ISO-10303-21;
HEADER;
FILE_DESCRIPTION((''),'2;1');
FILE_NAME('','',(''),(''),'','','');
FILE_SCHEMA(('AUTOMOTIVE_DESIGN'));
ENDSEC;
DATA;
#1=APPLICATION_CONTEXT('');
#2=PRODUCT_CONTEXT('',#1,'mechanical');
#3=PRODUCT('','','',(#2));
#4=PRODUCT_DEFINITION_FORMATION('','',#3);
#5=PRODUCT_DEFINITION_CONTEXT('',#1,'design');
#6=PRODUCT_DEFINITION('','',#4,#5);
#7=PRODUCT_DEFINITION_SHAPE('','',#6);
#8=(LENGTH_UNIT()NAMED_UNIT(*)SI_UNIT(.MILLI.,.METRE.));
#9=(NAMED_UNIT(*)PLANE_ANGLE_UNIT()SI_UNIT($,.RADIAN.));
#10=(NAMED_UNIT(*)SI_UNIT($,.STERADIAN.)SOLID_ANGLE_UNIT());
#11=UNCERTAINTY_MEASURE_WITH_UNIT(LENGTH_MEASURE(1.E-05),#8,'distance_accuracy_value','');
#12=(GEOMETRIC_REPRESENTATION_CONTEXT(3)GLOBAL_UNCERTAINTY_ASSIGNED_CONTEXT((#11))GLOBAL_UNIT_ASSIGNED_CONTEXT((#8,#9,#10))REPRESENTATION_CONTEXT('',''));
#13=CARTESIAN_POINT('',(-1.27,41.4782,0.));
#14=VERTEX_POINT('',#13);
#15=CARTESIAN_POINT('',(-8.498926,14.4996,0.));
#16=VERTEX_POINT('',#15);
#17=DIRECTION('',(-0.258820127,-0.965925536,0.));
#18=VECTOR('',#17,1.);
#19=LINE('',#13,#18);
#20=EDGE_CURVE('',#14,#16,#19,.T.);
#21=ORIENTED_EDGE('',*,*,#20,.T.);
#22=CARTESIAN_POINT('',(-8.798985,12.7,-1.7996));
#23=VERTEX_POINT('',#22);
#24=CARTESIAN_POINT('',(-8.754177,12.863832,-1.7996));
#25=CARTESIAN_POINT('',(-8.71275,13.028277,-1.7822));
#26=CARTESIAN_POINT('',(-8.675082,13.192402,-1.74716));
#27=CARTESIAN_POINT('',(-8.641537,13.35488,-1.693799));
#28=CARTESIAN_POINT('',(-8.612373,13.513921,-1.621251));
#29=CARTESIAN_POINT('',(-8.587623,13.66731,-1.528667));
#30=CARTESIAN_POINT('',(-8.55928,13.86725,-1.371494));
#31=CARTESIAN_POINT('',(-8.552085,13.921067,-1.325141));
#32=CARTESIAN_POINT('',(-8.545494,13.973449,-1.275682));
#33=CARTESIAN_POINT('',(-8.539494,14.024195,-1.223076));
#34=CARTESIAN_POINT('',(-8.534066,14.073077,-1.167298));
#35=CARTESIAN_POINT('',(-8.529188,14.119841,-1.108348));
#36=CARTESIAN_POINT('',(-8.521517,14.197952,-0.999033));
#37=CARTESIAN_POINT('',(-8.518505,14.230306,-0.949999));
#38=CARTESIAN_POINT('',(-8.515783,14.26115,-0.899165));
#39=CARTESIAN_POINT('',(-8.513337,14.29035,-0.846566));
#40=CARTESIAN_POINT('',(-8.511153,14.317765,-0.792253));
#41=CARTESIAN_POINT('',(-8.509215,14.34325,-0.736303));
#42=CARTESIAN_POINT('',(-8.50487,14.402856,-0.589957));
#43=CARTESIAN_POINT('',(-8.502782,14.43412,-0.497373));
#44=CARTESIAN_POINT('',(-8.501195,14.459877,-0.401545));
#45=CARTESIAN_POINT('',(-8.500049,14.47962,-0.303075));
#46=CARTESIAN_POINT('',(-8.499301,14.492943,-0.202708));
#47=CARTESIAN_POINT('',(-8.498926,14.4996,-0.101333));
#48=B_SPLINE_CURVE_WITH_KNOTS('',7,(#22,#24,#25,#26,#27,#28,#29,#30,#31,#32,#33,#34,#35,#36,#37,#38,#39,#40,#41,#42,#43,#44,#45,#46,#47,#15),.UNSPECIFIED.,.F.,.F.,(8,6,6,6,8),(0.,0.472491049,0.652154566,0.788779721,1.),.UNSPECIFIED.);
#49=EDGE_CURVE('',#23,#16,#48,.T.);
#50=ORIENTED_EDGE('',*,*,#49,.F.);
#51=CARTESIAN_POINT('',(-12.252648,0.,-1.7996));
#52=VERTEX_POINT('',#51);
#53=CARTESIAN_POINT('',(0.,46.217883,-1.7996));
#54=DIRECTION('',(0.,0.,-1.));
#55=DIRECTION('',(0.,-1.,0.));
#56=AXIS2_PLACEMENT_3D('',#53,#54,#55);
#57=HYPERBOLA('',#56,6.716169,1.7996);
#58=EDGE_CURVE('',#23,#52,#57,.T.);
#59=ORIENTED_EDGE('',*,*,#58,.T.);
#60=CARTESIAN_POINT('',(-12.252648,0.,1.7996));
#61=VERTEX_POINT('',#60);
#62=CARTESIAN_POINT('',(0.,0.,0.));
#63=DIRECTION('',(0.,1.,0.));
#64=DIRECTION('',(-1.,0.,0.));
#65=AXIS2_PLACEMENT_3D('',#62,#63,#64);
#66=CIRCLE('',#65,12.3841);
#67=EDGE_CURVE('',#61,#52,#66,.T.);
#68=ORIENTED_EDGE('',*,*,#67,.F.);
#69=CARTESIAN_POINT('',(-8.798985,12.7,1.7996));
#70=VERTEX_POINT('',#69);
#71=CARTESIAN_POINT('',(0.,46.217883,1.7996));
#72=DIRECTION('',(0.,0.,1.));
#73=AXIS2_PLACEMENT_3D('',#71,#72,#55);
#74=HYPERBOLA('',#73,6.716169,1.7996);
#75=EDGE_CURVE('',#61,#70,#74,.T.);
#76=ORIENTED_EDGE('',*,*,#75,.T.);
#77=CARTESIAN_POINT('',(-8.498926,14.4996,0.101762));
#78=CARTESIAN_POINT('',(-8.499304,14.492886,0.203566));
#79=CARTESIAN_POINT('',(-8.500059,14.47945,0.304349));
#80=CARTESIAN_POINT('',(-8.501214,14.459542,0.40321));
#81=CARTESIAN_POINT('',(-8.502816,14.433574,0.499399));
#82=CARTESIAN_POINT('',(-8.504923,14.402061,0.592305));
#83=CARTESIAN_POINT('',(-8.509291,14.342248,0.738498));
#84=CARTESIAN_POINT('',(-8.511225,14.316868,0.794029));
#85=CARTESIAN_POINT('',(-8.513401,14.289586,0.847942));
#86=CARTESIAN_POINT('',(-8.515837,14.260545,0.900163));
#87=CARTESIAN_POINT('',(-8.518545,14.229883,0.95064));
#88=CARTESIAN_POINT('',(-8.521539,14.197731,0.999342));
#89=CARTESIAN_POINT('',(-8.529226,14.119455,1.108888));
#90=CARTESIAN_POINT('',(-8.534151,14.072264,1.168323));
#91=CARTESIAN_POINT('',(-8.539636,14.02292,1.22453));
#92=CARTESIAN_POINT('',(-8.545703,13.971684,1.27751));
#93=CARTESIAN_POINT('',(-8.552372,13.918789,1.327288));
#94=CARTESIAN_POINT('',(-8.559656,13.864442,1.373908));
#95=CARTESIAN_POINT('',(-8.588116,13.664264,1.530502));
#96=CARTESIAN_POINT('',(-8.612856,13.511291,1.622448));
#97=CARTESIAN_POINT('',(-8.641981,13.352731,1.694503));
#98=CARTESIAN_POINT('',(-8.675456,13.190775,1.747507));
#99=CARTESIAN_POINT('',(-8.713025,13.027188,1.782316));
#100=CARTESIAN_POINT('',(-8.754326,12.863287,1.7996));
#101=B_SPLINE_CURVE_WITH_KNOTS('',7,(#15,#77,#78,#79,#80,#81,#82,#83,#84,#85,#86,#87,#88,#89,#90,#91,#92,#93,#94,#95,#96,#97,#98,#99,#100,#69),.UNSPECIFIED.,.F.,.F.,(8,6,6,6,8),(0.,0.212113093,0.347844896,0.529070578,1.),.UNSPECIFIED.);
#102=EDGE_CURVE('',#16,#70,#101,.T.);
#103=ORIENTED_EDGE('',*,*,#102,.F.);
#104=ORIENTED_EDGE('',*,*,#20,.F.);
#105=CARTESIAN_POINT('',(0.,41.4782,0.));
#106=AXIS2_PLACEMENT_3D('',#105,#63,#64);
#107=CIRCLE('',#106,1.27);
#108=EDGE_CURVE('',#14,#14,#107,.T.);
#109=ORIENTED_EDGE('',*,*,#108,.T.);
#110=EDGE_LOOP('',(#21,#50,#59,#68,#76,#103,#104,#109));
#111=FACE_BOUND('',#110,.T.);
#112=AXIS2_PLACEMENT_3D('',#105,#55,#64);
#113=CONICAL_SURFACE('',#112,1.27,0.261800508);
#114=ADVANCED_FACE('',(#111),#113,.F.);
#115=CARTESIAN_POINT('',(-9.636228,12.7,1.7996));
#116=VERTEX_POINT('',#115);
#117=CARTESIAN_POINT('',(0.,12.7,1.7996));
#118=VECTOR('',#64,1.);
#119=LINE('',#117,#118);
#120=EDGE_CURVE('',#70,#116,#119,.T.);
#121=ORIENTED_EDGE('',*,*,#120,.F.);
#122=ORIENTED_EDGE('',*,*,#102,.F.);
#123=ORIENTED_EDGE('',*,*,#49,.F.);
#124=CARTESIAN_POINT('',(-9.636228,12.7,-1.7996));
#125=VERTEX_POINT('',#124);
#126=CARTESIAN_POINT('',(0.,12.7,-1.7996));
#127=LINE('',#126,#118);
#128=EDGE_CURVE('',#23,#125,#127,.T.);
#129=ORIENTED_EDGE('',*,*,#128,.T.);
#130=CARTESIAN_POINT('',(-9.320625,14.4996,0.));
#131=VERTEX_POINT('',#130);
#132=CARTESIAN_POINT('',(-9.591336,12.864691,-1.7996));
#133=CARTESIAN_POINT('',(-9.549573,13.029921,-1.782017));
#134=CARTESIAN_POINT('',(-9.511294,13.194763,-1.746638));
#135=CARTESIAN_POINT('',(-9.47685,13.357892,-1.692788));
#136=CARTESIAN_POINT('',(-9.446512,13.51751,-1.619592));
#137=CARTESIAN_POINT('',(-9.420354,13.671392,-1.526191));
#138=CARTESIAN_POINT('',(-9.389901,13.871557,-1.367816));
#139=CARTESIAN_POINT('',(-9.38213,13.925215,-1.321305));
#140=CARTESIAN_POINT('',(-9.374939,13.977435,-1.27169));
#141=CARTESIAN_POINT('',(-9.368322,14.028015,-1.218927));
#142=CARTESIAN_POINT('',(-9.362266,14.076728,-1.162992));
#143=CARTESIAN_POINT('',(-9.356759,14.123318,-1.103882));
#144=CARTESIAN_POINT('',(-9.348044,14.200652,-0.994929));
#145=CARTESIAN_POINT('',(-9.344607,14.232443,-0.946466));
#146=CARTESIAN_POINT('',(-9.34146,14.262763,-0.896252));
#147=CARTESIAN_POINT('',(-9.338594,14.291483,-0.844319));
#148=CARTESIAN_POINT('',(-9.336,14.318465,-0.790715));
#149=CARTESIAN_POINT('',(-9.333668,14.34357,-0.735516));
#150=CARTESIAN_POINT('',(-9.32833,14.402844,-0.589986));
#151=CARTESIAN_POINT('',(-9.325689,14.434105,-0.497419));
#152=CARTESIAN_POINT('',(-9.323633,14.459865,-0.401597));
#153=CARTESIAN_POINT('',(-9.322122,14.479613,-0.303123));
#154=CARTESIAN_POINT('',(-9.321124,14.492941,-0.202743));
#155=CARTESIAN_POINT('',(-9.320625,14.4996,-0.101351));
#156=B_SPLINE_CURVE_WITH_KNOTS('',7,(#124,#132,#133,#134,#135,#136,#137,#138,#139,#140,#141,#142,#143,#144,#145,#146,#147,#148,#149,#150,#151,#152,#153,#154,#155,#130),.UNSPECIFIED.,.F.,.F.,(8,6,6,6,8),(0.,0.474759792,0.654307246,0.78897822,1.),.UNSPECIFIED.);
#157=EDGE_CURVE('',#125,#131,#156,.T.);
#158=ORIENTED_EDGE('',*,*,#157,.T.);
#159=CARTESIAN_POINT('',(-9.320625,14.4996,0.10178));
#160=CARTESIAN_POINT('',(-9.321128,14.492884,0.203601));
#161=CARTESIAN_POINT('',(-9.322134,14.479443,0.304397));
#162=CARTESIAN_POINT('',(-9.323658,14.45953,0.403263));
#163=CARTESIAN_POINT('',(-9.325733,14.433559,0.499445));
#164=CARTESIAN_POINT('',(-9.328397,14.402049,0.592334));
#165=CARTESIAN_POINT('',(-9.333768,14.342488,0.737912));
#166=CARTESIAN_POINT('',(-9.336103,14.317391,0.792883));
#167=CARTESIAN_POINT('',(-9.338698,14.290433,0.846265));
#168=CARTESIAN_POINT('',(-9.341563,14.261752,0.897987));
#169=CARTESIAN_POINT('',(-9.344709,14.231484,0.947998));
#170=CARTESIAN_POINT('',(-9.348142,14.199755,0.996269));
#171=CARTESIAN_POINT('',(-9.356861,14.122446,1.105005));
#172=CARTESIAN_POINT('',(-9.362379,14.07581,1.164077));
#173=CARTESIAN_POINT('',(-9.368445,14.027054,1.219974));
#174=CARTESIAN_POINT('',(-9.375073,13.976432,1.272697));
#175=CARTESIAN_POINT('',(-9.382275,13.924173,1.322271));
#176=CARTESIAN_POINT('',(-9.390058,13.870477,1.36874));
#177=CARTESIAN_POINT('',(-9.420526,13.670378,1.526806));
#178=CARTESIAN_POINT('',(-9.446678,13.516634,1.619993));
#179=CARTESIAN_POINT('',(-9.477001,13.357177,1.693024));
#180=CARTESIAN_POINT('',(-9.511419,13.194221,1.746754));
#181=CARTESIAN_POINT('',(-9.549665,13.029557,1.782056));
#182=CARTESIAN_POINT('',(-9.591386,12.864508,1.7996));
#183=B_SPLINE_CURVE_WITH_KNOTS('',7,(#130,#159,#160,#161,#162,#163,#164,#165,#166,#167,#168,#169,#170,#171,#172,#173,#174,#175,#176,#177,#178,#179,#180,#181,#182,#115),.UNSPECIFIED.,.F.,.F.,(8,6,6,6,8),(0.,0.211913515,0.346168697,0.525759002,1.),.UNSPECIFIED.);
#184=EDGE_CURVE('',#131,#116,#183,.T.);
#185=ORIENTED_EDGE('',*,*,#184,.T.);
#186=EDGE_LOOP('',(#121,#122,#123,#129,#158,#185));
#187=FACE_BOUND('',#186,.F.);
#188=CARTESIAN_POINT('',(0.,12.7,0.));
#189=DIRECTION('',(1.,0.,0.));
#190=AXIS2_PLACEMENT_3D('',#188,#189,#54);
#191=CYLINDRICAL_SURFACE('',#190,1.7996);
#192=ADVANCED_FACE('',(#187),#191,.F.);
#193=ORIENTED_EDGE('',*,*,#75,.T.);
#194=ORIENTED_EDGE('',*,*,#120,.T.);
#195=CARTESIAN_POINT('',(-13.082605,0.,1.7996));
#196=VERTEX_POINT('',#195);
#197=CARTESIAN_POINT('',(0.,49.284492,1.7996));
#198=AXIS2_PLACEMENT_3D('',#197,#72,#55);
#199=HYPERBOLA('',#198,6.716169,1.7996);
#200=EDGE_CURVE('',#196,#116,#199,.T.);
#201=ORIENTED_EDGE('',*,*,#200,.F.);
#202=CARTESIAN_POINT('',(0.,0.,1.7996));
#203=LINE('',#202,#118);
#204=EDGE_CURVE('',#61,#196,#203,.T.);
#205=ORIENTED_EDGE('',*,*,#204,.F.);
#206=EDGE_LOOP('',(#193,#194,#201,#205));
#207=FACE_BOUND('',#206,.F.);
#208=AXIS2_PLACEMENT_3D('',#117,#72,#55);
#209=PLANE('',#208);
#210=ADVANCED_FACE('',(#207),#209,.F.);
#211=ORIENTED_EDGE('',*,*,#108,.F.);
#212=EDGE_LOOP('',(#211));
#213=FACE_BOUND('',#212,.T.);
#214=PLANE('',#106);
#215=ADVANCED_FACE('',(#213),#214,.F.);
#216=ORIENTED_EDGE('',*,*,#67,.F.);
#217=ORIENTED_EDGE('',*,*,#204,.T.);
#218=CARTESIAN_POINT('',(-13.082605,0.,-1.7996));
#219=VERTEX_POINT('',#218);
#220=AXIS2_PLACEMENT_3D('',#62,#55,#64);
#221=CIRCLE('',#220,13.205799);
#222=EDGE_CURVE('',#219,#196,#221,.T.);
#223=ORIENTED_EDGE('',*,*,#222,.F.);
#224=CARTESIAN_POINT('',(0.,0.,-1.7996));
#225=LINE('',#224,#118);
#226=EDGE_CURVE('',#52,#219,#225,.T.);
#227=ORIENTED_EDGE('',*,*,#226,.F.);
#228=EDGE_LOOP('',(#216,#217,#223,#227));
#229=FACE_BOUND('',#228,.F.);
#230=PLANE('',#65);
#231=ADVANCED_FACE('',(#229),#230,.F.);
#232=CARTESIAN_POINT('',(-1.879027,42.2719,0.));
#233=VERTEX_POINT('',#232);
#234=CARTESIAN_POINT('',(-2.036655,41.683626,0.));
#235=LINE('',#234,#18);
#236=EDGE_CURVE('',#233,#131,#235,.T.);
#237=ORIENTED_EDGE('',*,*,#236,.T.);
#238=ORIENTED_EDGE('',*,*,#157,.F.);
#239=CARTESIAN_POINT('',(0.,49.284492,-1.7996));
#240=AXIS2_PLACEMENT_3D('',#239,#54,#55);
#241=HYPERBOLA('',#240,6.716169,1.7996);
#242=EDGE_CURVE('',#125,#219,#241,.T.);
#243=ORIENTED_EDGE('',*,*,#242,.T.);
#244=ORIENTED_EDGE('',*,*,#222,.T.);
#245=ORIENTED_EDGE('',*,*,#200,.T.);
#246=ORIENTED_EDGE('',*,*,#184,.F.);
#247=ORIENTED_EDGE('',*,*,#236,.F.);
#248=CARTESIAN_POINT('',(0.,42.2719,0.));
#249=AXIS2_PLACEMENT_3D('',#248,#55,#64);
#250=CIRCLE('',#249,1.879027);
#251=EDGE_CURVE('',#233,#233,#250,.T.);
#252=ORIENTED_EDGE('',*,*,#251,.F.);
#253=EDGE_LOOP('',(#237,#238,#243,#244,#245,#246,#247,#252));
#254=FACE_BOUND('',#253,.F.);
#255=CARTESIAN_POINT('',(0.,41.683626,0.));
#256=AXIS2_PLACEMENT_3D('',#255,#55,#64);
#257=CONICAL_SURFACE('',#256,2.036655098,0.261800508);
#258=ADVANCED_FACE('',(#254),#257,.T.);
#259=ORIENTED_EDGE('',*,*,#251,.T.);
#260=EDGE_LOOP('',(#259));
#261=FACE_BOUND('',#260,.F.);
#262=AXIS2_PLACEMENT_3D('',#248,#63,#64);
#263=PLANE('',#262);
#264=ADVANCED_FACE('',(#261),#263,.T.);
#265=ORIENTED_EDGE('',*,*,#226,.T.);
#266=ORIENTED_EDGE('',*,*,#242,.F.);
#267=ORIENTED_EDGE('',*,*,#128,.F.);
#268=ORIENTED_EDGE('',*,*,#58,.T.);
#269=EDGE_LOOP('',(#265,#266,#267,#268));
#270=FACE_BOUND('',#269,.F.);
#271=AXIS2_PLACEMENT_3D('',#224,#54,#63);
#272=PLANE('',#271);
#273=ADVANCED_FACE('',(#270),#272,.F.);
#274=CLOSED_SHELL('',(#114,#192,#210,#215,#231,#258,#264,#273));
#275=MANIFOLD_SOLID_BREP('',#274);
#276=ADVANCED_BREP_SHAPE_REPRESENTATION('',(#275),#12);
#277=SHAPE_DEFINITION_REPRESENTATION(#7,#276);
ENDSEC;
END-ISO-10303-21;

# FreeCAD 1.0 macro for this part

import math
import FreeCAD as App
import Part
import Sketcher

V = App.Vector
Q = App.Units.Quantity


def faces_at(feature, points):
    """Names of the faces that lie closest to the given points."""
    faces = feature.Shape.Faces
    near = lambda p: min(range(len(faces)), key=lambda i: faces[i].distToShape(Part.Vertex(*p))[0])
    return sorted({f"Face{near(p) + 1}" for p in points})


def add_polygon(sketch, points):
    """Adds a closed chain of lines whose ends are joined by coincident constraints."""
    first, n = sketch.GeometryCount, len(points)
    for a, b in zip(points, points[1:] + points[:1]):
        sketch.addGeometry(Part.LineSegment(App.Vector(*a, 0), App.Vector(*b, 0)), False)
    for i in range(n):
        sketch.addConstraint(Sketcher.Constraint("Coincident", first + i, 2, first + (i + 1) % n, 1))

doc = App.newDocument("Part")
body = doc.addObject("PartDesign::Body", "Body")

sketch1 = body.newObject("Sketcher::SketchObject", "Sketch")
sketch1.AttachmentSupport = (doc.getObject("XY_Plane"), [""])
sketch1.MapMode = "FlatFace"
add_polygon(sketch1, [(-12.4, 0), (0, 0), (0, 41.5), (-1.3, 41.5)])
sketch1.addConstraint([
    Sketcher.Constraint("Horizontal", 0),
    Sketcher.Constraint("Vertical", 1),
    Sketcher.Constraint("Horizontal", 2),
    Sketcher.Constraint("Coincident", 0, 2, -1, 1),
    Sketcher.Constraint("DistanceX", 2, 2, 2, 1, Q("0.05 in")),
    Sketcher.Constraint("DistanceY", 1, 1, 1, 2, Q("1.633 in")),
    Sketcher.Constraint("Angle", 3, Q("-105 deg")),
])
revolution = body.newObject("PartDesign::Revolution", "Revolution")
revolution.Profile = sketch1
revolution.ReferenceAxis = (sketch1, ["V_Axis"])
revolution.Angle = 360
doc.recompute()

thickness = body.newObject("PartDesign::Thickness", "Thickness")
thickness.Base = (revolution, faces_at(revolution, [(4.008, 0, 0.988)]))
thickness.Value = Q("0.031248 in")
thickness.Reversed = False
thickness.Join = "Intersection"

sketch2 = body.newObject("Sketcher::SketchObject", "Sketch001")
sketch2.AttachmentSupport = (doc.getObject("YZ_Plane"), [""])
sketch2.MapMode = "FlatFace"
sketch2.addGeometry([
    Part.LineSegment(V(0, 1.8, 0), V(0, -1.8, 0)),
    Part.LineSegment(V(0, -1.8, 0), V(12.7, -1.8, 0)),
    Part.ArcOfCircle(Part.Circle(V(12.7, 0, 0), V(0, 0, 1), 1.8), math.radians(-90), math.radians(90)),
    Part.LineSegment(V(12.7, 1.8, 0), V(0, 1.8, 0)),
], False)
sketch2.addConstraint([
    Sketcher.Constraint("Coincident", 0, 2, 1, 1),
    Sketcher.Constraint("Tangent", 1, 2, 2, 1),
    Sketcher.Constraint("Tangent", 2, 2, 3, 1),
    Sketcher.Constraint("Coincident", 3, 2, 0, 1),
    Sketcher.Constraint("Vertical", 0),
    Sketcher.Constraint("Horizontal", 1),
    Sketcher.Constraint("Horizontal", 3),
    Sketcher.Constraint("Symmetric", 0, 2, 3, 2, -1, 1),
    Sketcher.Constraint("Radius", 2, 1.7996),
    Sketcher.Constraint("DistanceX", 1, 1, 1, 2, Q("0.5 in")),
])
pocket1 = body.newObject("PartDesign::Pocket", "Pocket")
pocket1.Profile = sketch2
pocket1.Type = "ThroughAll"

doc.recompute()
